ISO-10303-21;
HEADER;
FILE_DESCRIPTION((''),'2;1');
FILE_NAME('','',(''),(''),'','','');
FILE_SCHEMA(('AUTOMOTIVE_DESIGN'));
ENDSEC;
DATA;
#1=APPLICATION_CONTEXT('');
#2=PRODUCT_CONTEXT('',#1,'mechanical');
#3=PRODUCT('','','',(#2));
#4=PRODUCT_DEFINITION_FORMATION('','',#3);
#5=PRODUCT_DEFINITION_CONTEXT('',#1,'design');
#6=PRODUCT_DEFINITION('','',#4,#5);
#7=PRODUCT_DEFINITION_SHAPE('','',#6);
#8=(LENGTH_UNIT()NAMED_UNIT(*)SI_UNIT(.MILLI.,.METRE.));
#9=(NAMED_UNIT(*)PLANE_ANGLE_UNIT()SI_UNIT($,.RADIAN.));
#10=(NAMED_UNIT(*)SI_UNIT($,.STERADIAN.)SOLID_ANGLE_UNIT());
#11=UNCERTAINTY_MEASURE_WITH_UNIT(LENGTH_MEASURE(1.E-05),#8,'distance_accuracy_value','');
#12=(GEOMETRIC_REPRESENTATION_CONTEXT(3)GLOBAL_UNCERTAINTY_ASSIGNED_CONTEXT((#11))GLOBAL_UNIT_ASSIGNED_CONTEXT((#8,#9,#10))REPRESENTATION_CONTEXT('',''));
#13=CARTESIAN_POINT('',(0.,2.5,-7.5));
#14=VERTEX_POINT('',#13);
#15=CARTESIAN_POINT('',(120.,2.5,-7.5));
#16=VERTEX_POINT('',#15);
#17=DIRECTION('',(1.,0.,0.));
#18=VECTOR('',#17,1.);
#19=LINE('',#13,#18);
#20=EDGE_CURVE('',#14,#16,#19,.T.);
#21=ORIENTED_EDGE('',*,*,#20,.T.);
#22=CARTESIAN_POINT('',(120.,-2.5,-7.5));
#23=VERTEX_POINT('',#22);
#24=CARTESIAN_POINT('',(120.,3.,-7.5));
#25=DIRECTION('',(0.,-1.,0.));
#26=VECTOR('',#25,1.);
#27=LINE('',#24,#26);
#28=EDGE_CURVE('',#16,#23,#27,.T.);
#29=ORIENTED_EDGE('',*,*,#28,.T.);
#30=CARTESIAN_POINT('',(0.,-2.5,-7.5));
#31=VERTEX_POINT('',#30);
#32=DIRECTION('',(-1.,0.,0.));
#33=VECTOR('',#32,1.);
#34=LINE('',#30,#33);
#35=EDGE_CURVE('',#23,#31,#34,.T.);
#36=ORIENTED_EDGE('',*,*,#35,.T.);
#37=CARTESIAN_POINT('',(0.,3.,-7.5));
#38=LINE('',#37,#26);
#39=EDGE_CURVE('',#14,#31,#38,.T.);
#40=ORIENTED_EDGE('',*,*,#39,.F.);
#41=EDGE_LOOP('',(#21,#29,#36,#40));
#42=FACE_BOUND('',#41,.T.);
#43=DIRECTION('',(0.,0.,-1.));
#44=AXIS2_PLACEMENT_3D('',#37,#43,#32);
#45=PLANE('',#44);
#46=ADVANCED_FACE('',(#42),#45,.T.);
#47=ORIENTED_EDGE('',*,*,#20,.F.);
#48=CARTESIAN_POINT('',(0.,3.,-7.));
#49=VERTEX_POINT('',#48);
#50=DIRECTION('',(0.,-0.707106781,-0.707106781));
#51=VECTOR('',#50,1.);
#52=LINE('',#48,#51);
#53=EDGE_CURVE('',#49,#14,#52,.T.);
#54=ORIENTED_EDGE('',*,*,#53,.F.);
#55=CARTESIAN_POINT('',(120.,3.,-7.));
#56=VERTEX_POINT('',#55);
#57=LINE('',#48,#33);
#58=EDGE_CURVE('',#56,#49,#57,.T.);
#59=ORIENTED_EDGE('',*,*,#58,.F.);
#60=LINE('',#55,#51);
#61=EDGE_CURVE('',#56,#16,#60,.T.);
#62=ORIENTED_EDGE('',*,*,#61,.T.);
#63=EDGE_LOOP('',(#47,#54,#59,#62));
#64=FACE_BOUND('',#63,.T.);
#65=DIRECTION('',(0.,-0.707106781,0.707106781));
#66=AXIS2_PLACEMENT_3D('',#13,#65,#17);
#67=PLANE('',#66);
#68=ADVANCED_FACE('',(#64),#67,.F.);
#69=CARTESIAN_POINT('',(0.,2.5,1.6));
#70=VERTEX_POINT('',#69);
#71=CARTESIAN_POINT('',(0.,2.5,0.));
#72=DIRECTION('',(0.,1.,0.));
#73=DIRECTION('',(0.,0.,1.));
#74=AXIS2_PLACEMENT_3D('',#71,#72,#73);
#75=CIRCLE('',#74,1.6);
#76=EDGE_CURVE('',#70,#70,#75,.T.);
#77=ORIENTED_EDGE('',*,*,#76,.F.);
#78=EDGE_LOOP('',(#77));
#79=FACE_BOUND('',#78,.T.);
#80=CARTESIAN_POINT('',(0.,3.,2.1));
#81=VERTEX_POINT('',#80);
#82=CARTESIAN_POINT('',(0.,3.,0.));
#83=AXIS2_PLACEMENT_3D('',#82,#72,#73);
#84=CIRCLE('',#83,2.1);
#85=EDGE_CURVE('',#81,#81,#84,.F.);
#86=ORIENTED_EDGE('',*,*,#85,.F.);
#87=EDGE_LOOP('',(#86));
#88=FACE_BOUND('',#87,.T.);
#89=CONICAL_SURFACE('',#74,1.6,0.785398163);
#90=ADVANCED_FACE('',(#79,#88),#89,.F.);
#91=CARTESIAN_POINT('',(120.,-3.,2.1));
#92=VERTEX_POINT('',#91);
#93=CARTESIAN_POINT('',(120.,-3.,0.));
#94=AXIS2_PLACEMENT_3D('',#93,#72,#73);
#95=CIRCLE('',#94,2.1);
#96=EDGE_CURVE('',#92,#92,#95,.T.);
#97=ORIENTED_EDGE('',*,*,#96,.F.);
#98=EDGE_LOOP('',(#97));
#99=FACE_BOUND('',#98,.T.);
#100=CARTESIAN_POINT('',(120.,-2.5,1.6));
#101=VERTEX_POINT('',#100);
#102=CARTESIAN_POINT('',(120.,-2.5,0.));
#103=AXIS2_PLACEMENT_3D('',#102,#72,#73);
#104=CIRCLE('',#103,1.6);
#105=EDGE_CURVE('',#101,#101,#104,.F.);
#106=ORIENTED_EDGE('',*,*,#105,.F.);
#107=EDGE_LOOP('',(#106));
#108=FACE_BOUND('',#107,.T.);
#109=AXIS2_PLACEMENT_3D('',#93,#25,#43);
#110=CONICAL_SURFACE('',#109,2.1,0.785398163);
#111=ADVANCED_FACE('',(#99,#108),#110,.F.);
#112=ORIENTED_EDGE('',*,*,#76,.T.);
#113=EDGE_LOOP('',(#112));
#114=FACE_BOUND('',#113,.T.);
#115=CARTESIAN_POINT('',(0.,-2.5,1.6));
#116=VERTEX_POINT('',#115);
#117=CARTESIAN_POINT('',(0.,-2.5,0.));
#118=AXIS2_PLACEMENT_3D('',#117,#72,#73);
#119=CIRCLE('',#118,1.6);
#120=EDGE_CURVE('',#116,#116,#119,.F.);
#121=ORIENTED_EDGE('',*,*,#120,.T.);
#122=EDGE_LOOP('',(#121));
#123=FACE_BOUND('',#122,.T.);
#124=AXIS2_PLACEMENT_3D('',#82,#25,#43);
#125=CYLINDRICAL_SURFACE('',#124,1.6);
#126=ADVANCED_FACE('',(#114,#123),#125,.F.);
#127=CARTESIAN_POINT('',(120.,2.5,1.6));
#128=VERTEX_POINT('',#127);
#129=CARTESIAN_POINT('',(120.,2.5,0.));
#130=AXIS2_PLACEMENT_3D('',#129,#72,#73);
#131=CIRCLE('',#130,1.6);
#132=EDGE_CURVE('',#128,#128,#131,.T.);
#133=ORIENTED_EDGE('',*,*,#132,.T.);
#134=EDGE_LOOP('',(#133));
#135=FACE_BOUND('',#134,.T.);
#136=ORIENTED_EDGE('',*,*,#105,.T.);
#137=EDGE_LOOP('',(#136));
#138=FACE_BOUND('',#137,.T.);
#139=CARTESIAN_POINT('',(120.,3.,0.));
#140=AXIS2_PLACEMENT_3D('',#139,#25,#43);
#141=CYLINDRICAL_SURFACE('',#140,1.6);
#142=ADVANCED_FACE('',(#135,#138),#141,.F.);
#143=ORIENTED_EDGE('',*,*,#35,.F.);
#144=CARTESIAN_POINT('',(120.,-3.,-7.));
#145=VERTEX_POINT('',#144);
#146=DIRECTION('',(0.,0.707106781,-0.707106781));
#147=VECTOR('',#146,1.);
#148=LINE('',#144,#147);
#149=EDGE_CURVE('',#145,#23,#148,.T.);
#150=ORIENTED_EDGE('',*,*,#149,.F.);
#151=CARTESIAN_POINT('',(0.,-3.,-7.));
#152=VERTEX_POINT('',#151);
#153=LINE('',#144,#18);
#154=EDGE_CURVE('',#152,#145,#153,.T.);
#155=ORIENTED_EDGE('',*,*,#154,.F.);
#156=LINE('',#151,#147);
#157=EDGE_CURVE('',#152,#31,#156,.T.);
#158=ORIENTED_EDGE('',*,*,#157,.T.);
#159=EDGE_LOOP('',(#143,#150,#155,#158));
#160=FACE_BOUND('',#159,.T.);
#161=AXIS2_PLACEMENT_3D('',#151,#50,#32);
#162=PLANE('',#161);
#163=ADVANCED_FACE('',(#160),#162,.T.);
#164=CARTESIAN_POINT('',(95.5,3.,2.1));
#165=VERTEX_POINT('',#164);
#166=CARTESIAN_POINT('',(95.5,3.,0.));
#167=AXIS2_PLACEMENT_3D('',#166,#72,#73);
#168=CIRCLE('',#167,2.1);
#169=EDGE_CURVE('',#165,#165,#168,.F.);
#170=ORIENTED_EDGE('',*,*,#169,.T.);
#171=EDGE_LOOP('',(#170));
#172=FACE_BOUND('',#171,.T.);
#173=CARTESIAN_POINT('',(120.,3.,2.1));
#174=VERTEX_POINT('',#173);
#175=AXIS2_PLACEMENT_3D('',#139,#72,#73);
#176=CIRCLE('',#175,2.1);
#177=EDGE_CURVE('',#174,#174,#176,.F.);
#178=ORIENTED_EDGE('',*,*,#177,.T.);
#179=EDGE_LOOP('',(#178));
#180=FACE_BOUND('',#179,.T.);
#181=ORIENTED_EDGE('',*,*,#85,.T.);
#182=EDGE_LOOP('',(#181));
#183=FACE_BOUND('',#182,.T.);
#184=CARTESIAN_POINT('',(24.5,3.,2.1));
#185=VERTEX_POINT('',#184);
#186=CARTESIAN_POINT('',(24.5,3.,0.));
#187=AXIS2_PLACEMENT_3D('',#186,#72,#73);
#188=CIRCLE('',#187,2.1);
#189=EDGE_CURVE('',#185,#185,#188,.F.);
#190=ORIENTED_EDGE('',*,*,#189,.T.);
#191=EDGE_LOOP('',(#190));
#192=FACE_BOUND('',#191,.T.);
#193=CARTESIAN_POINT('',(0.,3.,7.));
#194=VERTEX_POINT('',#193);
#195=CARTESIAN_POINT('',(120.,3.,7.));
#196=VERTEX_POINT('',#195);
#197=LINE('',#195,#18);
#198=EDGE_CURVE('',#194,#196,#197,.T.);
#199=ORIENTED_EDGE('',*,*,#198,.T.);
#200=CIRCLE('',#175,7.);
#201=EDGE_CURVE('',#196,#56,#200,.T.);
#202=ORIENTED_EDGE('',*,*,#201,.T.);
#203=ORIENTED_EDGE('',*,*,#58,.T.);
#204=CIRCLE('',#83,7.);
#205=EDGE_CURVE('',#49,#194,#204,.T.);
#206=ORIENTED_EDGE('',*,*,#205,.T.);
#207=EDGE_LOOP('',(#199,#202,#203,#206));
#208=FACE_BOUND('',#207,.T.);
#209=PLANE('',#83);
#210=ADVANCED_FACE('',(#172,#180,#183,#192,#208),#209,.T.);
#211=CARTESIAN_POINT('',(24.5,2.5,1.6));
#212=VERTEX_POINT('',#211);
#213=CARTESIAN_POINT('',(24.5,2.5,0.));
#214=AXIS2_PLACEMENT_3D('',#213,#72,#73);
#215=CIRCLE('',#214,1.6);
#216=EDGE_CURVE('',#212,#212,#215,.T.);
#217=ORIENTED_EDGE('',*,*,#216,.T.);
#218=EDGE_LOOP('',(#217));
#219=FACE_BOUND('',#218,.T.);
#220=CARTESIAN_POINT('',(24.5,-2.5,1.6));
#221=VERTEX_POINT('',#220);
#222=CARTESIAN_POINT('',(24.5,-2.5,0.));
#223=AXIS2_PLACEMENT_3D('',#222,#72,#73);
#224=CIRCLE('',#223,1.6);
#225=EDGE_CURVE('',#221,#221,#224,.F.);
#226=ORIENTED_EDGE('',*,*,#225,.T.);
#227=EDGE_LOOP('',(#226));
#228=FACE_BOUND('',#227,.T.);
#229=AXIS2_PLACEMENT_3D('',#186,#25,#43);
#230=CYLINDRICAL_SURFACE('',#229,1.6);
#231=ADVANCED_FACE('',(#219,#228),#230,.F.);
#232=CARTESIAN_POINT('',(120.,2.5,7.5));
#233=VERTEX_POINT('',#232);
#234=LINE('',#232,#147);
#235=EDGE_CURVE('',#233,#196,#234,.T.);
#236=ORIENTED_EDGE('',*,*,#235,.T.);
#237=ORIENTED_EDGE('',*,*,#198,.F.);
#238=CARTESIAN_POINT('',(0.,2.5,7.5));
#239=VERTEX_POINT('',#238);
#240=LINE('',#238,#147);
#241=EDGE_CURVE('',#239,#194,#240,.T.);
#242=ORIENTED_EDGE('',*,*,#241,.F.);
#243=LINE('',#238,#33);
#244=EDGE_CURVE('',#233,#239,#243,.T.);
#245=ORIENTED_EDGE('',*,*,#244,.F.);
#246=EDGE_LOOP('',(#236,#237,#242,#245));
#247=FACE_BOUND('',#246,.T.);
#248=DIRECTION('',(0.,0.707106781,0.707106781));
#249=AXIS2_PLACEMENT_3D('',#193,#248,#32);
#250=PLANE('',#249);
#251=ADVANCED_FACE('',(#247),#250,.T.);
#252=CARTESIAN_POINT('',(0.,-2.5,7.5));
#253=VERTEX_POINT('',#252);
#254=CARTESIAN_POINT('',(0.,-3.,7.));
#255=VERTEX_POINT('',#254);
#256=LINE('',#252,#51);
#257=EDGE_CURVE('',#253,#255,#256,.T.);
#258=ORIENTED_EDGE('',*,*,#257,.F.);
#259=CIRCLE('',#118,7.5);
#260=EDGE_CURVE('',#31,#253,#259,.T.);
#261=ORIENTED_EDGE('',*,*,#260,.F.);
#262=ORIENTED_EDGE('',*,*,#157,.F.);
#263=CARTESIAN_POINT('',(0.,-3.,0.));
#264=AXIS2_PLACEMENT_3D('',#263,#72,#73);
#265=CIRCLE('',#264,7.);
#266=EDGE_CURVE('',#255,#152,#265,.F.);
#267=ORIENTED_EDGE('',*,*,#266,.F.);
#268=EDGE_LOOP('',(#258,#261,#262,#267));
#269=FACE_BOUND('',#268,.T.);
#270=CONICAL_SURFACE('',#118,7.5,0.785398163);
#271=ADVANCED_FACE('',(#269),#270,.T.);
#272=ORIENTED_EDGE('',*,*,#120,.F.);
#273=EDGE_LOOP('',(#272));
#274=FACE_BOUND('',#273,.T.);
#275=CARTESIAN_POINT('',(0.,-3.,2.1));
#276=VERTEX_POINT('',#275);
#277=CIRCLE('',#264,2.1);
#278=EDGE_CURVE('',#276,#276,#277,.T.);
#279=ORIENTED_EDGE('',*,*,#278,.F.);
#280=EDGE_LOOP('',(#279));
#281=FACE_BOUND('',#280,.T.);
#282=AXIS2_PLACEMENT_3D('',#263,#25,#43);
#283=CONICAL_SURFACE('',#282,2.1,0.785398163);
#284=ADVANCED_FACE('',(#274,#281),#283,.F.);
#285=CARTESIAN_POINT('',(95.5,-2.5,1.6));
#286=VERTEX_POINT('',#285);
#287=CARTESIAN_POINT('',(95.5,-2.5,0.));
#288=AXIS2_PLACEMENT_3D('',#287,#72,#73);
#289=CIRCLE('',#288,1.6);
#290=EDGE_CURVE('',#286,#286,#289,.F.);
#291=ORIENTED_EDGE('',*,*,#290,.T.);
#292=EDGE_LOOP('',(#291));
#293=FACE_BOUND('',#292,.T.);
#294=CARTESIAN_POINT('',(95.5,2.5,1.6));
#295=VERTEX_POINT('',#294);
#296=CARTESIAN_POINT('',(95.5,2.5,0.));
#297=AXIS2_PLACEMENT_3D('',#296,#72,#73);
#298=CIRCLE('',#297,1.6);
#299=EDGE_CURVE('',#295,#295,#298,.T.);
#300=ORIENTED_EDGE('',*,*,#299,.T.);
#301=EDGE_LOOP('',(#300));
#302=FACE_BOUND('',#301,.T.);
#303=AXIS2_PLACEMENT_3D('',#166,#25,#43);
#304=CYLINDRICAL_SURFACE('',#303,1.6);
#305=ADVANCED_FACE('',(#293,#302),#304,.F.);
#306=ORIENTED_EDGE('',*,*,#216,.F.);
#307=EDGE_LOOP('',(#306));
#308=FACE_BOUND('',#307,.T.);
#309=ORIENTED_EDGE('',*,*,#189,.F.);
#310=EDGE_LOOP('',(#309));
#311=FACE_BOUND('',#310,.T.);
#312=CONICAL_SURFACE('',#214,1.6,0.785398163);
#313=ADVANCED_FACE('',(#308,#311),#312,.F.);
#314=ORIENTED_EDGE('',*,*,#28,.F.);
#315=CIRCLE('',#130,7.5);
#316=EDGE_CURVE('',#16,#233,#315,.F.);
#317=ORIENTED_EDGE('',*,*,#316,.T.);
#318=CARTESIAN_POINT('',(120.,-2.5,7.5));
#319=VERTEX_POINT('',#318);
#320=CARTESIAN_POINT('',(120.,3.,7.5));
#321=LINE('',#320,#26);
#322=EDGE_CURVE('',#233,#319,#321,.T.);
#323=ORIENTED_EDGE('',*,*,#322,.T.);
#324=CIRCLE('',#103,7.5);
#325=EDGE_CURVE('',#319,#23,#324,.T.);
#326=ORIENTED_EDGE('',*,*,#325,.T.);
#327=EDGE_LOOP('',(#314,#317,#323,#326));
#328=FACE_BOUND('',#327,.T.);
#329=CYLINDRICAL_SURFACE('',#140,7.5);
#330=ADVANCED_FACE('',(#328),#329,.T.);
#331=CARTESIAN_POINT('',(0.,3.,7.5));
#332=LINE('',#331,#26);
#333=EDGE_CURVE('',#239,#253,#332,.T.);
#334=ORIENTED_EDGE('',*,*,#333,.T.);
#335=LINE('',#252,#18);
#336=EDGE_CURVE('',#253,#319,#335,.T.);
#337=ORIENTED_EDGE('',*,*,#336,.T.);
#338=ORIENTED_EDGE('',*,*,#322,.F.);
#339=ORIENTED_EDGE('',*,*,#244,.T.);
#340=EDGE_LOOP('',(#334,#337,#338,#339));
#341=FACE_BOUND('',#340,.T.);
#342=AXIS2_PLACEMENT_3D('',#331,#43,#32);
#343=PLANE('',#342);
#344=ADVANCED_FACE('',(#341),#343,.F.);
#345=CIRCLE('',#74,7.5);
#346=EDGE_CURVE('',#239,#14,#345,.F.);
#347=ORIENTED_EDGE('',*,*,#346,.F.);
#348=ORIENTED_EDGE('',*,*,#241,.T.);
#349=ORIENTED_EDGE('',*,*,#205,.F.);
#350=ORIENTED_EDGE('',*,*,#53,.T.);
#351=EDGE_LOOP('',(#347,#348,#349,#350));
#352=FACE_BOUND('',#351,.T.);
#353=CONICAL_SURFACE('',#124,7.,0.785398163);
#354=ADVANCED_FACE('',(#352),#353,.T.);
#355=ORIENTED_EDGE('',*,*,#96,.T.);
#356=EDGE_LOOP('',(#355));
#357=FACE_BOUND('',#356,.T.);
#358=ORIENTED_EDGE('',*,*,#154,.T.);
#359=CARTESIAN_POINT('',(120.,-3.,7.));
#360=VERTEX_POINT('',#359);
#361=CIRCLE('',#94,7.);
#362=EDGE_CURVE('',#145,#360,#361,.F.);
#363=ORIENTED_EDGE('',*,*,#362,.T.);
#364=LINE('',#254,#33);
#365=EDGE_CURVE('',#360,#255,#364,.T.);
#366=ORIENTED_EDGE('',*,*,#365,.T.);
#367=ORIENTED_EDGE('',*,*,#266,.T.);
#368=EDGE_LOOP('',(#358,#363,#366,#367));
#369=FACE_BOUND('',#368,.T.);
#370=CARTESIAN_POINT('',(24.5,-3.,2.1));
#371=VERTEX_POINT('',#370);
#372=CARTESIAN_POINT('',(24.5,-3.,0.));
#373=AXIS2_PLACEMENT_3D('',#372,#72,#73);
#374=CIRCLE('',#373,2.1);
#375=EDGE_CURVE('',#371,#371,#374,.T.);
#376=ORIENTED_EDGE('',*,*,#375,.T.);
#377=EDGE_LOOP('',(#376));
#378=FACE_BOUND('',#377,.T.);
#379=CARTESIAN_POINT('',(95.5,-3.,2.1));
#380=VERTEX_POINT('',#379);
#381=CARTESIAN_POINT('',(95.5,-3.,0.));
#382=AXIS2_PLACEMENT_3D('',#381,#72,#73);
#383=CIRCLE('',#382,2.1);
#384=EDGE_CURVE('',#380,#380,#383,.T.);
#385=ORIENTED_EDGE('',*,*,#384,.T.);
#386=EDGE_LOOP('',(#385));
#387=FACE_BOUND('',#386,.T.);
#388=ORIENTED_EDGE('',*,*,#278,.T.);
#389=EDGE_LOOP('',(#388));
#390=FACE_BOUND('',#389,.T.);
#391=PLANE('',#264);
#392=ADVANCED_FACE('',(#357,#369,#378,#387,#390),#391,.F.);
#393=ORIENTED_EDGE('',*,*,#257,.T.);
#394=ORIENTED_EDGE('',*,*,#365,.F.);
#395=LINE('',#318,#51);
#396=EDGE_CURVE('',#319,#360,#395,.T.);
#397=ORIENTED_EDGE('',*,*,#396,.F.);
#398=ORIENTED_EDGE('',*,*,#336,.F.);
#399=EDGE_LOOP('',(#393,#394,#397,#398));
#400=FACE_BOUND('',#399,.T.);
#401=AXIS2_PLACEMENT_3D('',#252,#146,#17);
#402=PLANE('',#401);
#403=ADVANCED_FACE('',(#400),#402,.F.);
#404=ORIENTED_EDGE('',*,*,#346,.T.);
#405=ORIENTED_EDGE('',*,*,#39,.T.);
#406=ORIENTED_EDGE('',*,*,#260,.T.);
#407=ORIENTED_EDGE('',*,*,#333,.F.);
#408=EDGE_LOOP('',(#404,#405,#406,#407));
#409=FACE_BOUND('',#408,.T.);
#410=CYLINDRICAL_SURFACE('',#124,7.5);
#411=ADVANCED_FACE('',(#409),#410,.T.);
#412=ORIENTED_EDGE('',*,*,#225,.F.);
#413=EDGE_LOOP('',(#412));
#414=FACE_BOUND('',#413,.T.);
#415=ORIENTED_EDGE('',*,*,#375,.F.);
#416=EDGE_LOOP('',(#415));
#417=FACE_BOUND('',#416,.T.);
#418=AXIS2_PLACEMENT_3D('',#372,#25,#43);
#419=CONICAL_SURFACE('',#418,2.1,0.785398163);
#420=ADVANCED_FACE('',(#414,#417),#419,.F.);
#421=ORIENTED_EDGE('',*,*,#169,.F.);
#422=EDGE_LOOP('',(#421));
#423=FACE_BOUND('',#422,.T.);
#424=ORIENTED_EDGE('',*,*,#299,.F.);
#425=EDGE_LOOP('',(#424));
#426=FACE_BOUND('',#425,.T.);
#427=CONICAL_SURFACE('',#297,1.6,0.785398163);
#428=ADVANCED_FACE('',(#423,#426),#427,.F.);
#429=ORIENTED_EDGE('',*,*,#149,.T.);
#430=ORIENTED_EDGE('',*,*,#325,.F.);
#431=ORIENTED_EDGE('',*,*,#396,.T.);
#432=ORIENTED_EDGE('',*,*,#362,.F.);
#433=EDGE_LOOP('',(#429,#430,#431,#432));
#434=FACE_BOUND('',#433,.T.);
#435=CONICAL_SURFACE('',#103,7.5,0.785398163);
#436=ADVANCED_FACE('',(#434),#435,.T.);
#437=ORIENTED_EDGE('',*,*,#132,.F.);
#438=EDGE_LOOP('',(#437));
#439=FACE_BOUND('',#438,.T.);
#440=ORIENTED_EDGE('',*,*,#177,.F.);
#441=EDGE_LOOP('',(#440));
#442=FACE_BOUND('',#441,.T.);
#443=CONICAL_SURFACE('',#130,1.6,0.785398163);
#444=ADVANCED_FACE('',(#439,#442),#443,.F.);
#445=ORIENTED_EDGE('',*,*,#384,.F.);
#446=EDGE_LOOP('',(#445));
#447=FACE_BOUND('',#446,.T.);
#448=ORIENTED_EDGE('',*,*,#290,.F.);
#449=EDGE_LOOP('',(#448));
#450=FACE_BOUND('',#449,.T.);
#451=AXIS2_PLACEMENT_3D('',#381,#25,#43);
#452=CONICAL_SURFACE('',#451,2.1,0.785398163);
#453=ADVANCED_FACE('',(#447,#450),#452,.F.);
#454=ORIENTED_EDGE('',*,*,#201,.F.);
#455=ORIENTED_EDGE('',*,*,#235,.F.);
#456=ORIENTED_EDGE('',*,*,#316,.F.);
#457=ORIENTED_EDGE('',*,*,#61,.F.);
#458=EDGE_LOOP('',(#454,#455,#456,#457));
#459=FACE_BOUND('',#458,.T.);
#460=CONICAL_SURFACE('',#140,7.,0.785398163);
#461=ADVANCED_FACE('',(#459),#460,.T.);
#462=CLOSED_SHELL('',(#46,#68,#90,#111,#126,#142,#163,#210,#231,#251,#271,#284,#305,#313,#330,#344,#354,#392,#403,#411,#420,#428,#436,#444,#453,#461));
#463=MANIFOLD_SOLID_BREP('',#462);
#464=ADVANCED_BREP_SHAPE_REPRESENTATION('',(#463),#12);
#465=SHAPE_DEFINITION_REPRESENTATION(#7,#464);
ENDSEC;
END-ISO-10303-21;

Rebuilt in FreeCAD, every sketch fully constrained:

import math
import FreeCAD as App
import Part
import Sketcher

V = App.Vector


def edges_at(feature, points):
    """Names of the edges that pass closest to the given points."""
    edges = feature.Shape.Edges
    near = lambda p: min(range(len(edges)), key=lambda i: edges[i].distToShape(Part.Vertex(*p))[0])
    return sorted({f"Edge{near(p) + 1}" for p in points})

doc = App.newDocument("Part")
params = doc.addObject("Spreadsheet::Sheet", "Params")
for row, (alias, value) in enumerate([
    ("sketch1_diameter", "3.2 mm"),
    ("sketch1_radius", "7.5 mm"),
    ("sketch1_width", "120 mm"),
    ("pad1_length", "6 mm"),
    ("chamfer_size", "0.5 mm"),
], start=1):
    params.set(f"A{row}", alias)
    params.set(f"B{row}", "=" + value)
    params.setAlias(f"B{row}", alias)

body = doc.addObject("PartDesign::Body", "Body")

# Sketch on XZ plane
sketch1 = body.newObject("Sketcher::SketchObject", "Sketch")
sketch1.AttachmentSupport = (doc.getObject("XZ_Plane"), [""])
sketch1.MapMode = "FlatFace"
sketch1.addGeometry(Part.LineSegment(V(120, -7.5, 0), V(0, -7.5, 0)), False)
sketch1.addGeometry(Part.ArcOfCircle(Part.Circle(V(0, 0, 0), V(0, 0, 1), 7.5), math.radians(90), math.radians(270)), False)
sketch1.addGeometry(Part.LineSegment(V(0, 7.5, 0), V(120, 7.5, 0)), False)
sketch1.addGeometry(Part.ArcOfCircle(Part.Circle(V(120, 0, 0), V(0, 0, 1), 7.5), math.radians(-90), math.radians(90)), False)
sketch1.addGeometry(Part.Circle(V(120, 0, 0), V(0, 0, 1), 1.6), False)
sketch1.addGeometry(Part.Circle(V(95.5, 0, 0), V(0, 0, 1), 1.6), False)
sketch1.addGeometry(Part.Circle(V(24.5, 0, 0), V(0, 0, 1), 1.6), False)
sketch1.addGeometry(Part.Circle(V(0, 0, 0), V(0, 0, 1), 1.6), False)
sketch1.addConstraint(Sketcher.Constraint("Tangent", 0, 2, 1, 2))
sketch1.addConstraint(Sketcher.Constraint("Tangent", 1, 1, 2, 1))
sketch1.addConstraint(Sketcher.Constraint("Tangent", 2, 2, 3, 2))
sketch1.addConstraint(Sketcher.Constraint("Tangent", 3, 1, 0, 1))
sketch1.addConstraint(Sketcher.Constraint("Horizontal", 0))
sketch1.addConstraint(Sketcher.Constraint("Horizontal", 2))
sketch1.addConstraint(Sketcher.Constraint("Coincident", 1, 3, -1, 1))
sketch1.addConstraint(Sketcher.Constraint("Coincident", 7, 3, -1, 1))
sketch1.addConstraint(Sketcher.Constraint("Coincident", 4, 3, 3, 3))
sketch1.addConstraint(Sketcher.Constraint("Equal", 4, 5))
sketch1.addConstraint(Sketcher.Constraint("Equal", 5, 6))
sketch1.addConstraint(Sketcher.Constraint("Equal", 6, 7))
sketch1.addConstraint(Sketcher.Constraint("PointOnObject", 5, 3, -1))
sketch1.addConstraint(Sketcher.Constraint("PointOnObject", 6, 3, -1))
sketch1.addConstraint(Sketcher.Constraint("Diameter", 4, 3.2))
sketch1.addConstraint(Sketcher.Constraint("Radius", 1, 7.5))
sketch1.addConstraint(Sketcher.Constraint("DistanceX", 0, 2, 0, 1, 120.0))
sketch1.addConstraint(Sketcher.Constraint("DistanceX", 6, 3, 5, 3, 71.0))
sketch1.addConstraint(Sketcher.Constraint("DistanceX", -1, 1, 5, 3, 95.5))
sketch1.setExpression("Constraints[14]", "Params.sketch1_diameter")
sketch1.setExpression("Constraints[15]", "Params.sketch1_radius")
sketch1.setExpression("Constraints[16]", "Params.sketch1_width")
pad1 = body.newObject("PartDesign::Pad", "Pad")
pad1.Profile = sketch1
pad1.setExpression("Length", "Params.pad1_length")
pad1.Midplane = True
doc.recompute()

chamfer = body.newObject("PartDesign::Chamfer", "Chamfer")
chamfer.Base = (pad1, edges_at(pad1, [
    (95.5, 3, -1.6),
    (-7.5, -3, 0),
    (60, -3, -7.5),
    (127.5, -3, 0),
    (60, -3, 7.5),
    (120, -3, -1.6),
    (0, -3, -1.6),
    (24.5, -3, -1.6),
    (95.5, -3, -1.6),
    (24.5, 3, -1.6),
    (0, 3, -1.6),
    (120, 3, -1.6),
    (60, 3, 7.5),
    (127.5, 3, 0),
    (60, 3, -7.5),
    (-7.5, 3, 0),
]))
chamfer.setExpression("Size", "Params.chamfer_size")

doc.recompute()
